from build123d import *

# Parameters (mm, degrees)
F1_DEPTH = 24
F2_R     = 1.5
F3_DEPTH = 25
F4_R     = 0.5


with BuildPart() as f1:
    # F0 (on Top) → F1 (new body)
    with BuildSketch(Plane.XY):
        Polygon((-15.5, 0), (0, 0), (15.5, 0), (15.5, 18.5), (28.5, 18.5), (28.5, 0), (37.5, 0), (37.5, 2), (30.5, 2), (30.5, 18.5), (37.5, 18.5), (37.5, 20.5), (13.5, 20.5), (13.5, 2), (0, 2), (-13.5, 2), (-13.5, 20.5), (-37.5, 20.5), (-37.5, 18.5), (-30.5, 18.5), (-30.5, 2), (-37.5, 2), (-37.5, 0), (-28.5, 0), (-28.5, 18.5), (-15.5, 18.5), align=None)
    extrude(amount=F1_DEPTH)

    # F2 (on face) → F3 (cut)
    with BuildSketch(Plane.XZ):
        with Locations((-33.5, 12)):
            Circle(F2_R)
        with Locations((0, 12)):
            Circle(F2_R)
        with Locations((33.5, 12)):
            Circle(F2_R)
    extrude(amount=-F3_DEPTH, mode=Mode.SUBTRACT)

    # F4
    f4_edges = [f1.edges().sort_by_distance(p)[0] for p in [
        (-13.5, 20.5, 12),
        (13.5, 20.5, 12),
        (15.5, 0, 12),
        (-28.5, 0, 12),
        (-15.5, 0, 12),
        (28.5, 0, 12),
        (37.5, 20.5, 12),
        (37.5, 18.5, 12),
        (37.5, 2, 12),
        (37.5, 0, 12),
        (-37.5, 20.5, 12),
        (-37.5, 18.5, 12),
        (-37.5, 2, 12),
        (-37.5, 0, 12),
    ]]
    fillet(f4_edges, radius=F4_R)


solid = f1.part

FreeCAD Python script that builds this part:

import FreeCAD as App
import Part
import Sketcher
from FreeCAD import Vector


def edges_at(feature, points):
    """Names of the edges that pass closest to the given points."""
    edges = feature.Shape.Edges
    near = lambda p: min(range(len(edges)), key=lambda i: edges[i].distToShape(Part.Vertex(*p))[0])
    return sorted({f"Edge{near(p) + 1}" for p in points})


def add_polygon(sketch, points):
    """Adds a closed chain of lines whose ends are joined by coincident constraints."""
    first, n = sketch.GeometryCount, len(points)
    for a, b in zip(points, points[1:] + points[:1]):
        sketch.addGeometry(Part.LineSegment(App.Vector(*a, 0), App.Vector(*b, 0)), False)
    for i in range(n):
        sketch.addConstraint(Sketcher.Constraint("Coincident", first + i, 2, first + (i + 1) % n, 1))

doc = App.newDocument("Part")
body = doc.addObject("PartDesign::Body", "Body")

sketch1 = doc.addObject("Sketcher::SketchObject", "Sketch")
body.addObject(sketch1)
sketch1.AttachmentSupport = (doc.XY_Plane, [""])
sketch1.MapMode = "FlatFace"
add_polygon(sketch1, [(-15.5, 0), (15.5, 0), (15.5, 18.5), (28.5, 18.5), (28.5, 0), (37.5, 0), (37.5, 2), (30.5, 2), (30.5, 18.5), (37.5, 18.5), (37.5, 20.5), (13.5, 20.5), (13.5, 2), (-13.5, 2), (-13.5, 20.5), (-37.5, 20.5), (-37.5, 18.5), (-30.5, 18.5), (-30.5, 2), (-37.5, 2), (-37.5, 0), (-28.5, 0), (-28.5, 18.5), (-15.5, 18.5)])
sketch1.addConstraint([
    Sketcher.Constraint("Horizontal", 0),
    Sketcher.Constraint("Vertical", 1),
    Sketcher.Constraint("Horizontal", 2),
    Sketcher.Constraint("Vertical", 3),
    Sketcher.Constraint("Horizontal", 4),
    Sketcher.Constraint("Vertical", 5),
    Sketcher.Constraint("Horizontal", 6),
    Sketcher.Constraint("Vertical", 7),
    Sketcher.Constraint("Horizontal", 8),
    Sketcher.Constraint("Vertical", 9),
    Sketcher.Constraint("Horizontal", 10),
    Sketcher.Constraint("Vertical", 11),
    Sketcher.Constraint("Horizontal", 12),
    Sketcher.Constraint("Vertical", 13),
    Sketcher.Constraint("Horizontal", 14),
    Sketcher.Constraint("Vertical", 15),
    Sketcher.Constraint("Horizontal", 16),
    Sketcher.Constraint("Vertical", 17),
    Sketcher.Constraint("Horizontal", 18),
    Sketcher.Constraint("Vertical", 19),
    Sketcher.Constraint("Horizontal", 20),
    Sketcher.Constraint("Vertical", 21),
    Sketcher.Constraint("Horizontal", 22),
    Sketcher.Constraint("Vertical", 23),
    Sketcher.Constraint("Symmetric", 4, 2, 19, 2, -1, 1),
    Sketcher.Constraint("Symmetric", 0, 2, 23, 2, -1, 1),
    Sketcher.Constraint("Symmetric", 10, 2, 13, 2, -2),
    Sketcher.Constraint("Symmetric", 8, 2, 15, 2, -2),
    Sketcher.Constraint("Symmetric", 6, 2, 17, 2, -2),
    Sketcher.Constraint("Symmetric", 3, 2, 20, 2, -2),
    Sketcher.Constraint("Horizontal", 2, 2, 7, 2),
    Sketcher.Constraint("Horizontal", 6, 2, 11, 2),
    Sketcher.Constraint("Horizontal", 16, 2, 21, 2),
    Sketcher.Constraint("Vertical", 5, 2, 8, 2),
    Sketcher.Constraint("Equal", 5, 9),
    Sketcher.Constraint("DistanceX", 0, 1, 0, 2, 31.0),
    Sketcher.Constraint("DistanceX", 2, 1, 2, 2, 13.0),
    Sketcher.Constraint("DistanceX", 4, 1, 4, 2, 9.0),
    Sketcher.Constraint("DistanceX", 6, 2, 6, 1, 7.0),
    Sketcher.Constraint("DistanceX", 10, 2, 10, 1, 24.0),
    Sketcher.Constraint("DistanceY", 5, 1, 5, 2, 2.0),
    Sketcher.Constraint("DistanceY", 1, 1, 1, 2, 18.5),
])
pad1 = doc.addObject("PartDesign::Pad", "Pad")
body.addObject(pad1)
pad1.Profile = sketch1
pad1.Length = 24

sketch2 = doc.addObject("Sketcher::SketchObject", "Sketch001")
body.addObject(sketch2)
sketch2.AttachmentSupport = (doc.XZ_Plane, [""])
sketch2.MapMode = "FlatFace"
sketch2.addGeometry([
    Part.Circle(Vector(-33.5, 12, 0), Vector(0, 0, 1), 1.5),
    Part.Circle(Vector(0, 12, 0), Vector(0, 0, 1), 1.5),
    Part.Circle(Vector(33.5, 12, 0), Vector(0, 0, 1), 1.5),
], False)
sketch2.addConstraint([
    Sketcher.Constraint("Equal", 0, 1),
    Sketcher.Constraint("Equal", 1, 2),
    Sketcher.Constraint("Symmetric", 0, 3, 2, 3, -2),
    Sketcher.Constraint("PointOnObject", 1, 3, -2),
    Sketcher.Constraint("Horizontal", 0, 3, 1, 3),
    Sketcher.Constraint("Diameter", 0, 3.0),
    Sketcher.Constraint("DistanceY", -1, 1, 0, 3, 12.0),
    Sketcher.Constraint("DistanceX", 0, 3, 2, 3, 67.0),
])
pocket1 = doc.addObject("PartDesign::Pocket", "Pocket")
body.addObject(pocket1)
pocket1.Profile = sketch2
pocket1.Length = 25
doc.recompute()

fillet = doc.addObject("PartDesign::Fillet", "Fillet")
body.addObject(fillet)
fillet.Base = (pocket1, edges_at(pocket1, [
    (-13.5, 20.5, 12),
    (13.5, 20.5, 12),
    (15.5, 0, 12),
    (-28.5, 0, 12),
    (-15.5, 0, 12),
    (28.5, 0, 12),
    (37.5, 20.5, 12),
    (37.5, 18.5, 12),
    (37.5, 2, 12),
    (37.5, 0, 12),
    (-37.5, 20.5, 12),
    (-37.5, 18.5, 12),
    (-37.5, 2, 12),
    (-37.5, 0, 12),
]))
fillet.Radius = 0.5

doc.recompute()
